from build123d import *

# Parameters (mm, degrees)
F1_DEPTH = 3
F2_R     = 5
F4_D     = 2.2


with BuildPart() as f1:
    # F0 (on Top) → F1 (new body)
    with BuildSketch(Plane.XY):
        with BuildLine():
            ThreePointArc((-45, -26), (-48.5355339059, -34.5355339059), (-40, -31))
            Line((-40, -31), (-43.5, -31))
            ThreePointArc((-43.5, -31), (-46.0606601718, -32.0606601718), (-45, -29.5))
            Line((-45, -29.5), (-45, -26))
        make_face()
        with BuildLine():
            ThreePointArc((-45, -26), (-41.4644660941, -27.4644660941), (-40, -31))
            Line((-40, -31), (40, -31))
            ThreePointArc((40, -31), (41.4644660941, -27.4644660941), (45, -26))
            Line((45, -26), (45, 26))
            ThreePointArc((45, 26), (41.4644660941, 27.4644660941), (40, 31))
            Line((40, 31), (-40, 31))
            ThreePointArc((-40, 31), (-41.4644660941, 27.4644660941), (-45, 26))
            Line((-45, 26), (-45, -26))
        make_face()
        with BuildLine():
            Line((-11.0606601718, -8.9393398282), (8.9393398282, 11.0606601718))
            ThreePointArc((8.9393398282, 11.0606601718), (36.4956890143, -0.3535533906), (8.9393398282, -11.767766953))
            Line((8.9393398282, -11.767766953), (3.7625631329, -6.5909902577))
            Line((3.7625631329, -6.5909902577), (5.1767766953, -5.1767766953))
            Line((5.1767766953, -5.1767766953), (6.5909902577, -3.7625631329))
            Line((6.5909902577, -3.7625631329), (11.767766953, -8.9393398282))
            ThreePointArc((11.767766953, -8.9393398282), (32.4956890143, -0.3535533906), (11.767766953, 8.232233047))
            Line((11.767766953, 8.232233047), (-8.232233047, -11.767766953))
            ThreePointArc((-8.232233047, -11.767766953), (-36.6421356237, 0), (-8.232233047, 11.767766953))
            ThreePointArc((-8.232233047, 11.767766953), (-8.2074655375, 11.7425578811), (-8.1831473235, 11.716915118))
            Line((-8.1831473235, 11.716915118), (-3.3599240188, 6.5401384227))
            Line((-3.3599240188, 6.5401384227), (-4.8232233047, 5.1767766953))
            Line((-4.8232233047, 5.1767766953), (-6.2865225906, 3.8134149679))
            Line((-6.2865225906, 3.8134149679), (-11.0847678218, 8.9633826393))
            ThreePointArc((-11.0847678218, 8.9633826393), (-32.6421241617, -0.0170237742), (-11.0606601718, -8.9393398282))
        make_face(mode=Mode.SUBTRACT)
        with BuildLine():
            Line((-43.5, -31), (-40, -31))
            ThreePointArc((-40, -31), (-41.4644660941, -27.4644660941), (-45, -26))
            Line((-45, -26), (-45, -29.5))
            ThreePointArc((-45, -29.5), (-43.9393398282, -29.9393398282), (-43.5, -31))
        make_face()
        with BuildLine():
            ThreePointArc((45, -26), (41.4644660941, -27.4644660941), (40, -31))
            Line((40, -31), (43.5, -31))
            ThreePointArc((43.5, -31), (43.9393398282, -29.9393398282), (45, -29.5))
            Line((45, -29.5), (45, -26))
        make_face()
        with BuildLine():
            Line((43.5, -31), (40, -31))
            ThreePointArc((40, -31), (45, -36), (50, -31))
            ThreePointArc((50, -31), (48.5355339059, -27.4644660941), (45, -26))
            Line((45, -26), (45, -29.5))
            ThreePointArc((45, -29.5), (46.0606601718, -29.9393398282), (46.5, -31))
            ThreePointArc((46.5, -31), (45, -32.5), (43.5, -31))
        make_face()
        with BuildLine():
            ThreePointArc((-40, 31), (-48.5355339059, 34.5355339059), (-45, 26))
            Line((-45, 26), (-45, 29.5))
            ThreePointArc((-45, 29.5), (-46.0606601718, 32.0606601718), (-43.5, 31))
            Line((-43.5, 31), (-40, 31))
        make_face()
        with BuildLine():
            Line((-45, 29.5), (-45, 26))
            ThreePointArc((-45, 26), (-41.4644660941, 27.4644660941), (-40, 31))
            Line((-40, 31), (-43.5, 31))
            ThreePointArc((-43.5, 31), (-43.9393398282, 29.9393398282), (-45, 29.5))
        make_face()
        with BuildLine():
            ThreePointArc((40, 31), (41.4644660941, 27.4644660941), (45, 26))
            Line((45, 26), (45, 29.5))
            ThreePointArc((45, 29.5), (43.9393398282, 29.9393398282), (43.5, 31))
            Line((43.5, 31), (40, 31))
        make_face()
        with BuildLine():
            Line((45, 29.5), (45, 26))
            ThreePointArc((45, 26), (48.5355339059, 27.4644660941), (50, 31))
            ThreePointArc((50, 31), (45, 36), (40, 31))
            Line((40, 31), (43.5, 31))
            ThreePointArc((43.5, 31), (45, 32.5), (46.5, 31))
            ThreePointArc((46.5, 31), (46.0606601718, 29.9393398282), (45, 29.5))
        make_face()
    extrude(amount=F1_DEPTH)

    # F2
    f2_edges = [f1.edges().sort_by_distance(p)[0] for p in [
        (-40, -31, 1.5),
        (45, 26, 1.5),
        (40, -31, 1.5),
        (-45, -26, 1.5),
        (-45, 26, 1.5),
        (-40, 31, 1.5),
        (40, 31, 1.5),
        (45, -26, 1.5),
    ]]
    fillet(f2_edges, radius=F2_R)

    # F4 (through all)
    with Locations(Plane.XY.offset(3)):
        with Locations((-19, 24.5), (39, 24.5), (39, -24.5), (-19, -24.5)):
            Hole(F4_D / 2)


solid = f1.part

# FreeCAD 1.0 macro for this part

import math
import FreeCAD as App
import Part
import Sketcher

V = App.Vector
Q = App.Units.Quantity


def edges_at(feature, points):
    """Names of the edges that pass closest to the given points."""
    edges = feature.Shape.Edges
    near = lambda p: min(range(len(edges)), key=lambda i: edges[i].distToShape(Part.Vertex(*p))[0])
    return sorted({f"Edge{near(p) + 1}" for p in points})

doc = App.newDocument("Part")
body = doc.addObject("PartDesign::Body", "Body")

# Sketch on XY plane
sketch1 = body.newObject("Sketcher::SketchObject", "Sketch")
sketch1.AttachmentSupport = (doc.getObject("XY_Plane"), [""])
sketch1.MapMode = "FlatFace"
sketch1.addGeometry(Part.ArcOfCircle(Part.Circle(V(-45, -31, 0), V(0, 0, 1), 5), math.radians(90), math.radians(360)), False)
sketch1.addGeometry(Part.LineSegment(V(-40, -31, 0), V(40, -31, 0)), False)
sketch1.addGeometry(Part.ArcOfCircle(Part.Circle(V(45, -31, 0), V(0, 0, 1), 5), math.radians(180), math.radians(360)), False)
sketch1.addGeometry(Part.ArcOfCircle(Part.Circle(V(45, -31, 0), V(0, 0, 1), 5), math.radians(0), math.radians(90)), False)
sketch1.addGeometry(Part.LineSegment(V(45, -26, 0), V(45, 26, 0)), False)
sketch1.addGeometry(Part.ArcOfCircle(Part.Circle(V(45, 31, 0), V(0, 0, 1), 5), math.radians(-90), math.radians(0)), False)
sketch1.addGeometry(Part.ArcOfCircle(Part.Circle(V(45, 31, 0), V(0, 0, 1), 5), math.radians(0), math.radians(180)), False)
sketch1.addGeometry(Part.LineSegment(V(40, 31, 0), V(-40, 31, 0)), False)
sketch1.addGeometry(Part.ArcOfCircle(Part.Circle(V(-45, 31, 0), V(0, 0, 1), 5), math.radians(0), math.radians(270)), False)
sketch1.addGeometry(Part.LineSegment(V(-45, 26, 0), V(-45, -26, 0)), False)
sketch1.addGeometry(Part.ArcOfCircle(Part.Circle(V(45, 31, 0), V(0, 0, 1), 1.5), math.radians(180), math.radians(270)), False)
sketch1.addGeometry(Part.ArcOfCircle(Part.Circle(V(45, 31, 0), V(0, 0, 1), 1.5), math.radians(0), math.radians(180)), False)
sketch1.addGeometry(Part.ArcOfCircle(Part.Circle(V(45, 31, 0), V(0, 0, 1), 1.5), math.radians(-90), math.radians(0)), False)
sketch1.addGeometry(Part.ArcOfCircle(Part.Circle(V(45, -31, 0), V(0, 0, 1), 1.5), math.radians(90), math.radians(180)), False)
sketch1.addGeometry(Part.ArcOfCircle(Part.Circle(V(45, -31, 0), V(0, 0, 1), 1.5), math.radians(0), math.radians(90)), False)
sketch1.addGeometry(Part.ArcOfCircle(Part.Circle(V(45, -31, 0), V(0, 0, 1), 1.5), math.radians(180), math.radians(360)), False)
sketch1.addGeometry(Part.ArcOfCircle(Part.Circle(V(-45, -31, 0), V(0, 0, 1), 1.5), math.radians(90), math.radians(360)), False)
sketch1.addGeometry(Part.ArcOfCircle(Part.Circle(V(-45, -31, 0), V(0, 0, 1), 1.5), math.radians(0), math.radians(90)), False)
sketch1.addGeometry(Part.LineSegment(V(-11.06, -8.94, 0), V(8.94, 11.06, 0)), False)
sketch1.addGeometry(Part.ArcOfCircle(Part.Circle(V(20.35, -0.35, 0), V(0, 0, 1), 16.14), math.radians(-135), math.radians(135)), False)
sketch1.addGeometry(Part.LineSegment(V(8.94, -11.77, 0), V(3.76, -6.59, 0)), False)
sketch1.addGeometry(Part.LineSegment(V(3.76, -6.59, 0), V(6.59, -3.76, 0)), False)
sketch1.addGeometry(Part.LineSegment(V(6.59, -3.76, 0), V(11.77, -8.94, 0)), False)
sketch1.addGeometry(Part.ArcOfCircle(Part.Circle(V(20.35, -0.35, 0), V(0, 0, 1), 12.14), math.radians(-135), math.radians(135)), False)
sketch1.addGeometry(Part.LineSegment(V(11.77, 8.23, 0), V(-8.23, -11.77, 0)), False)
sketch1.addGeometry(Part.ArcOfCircle(Part.Circle(V(-20, 0, 0), V(0, 0, 1), 16.64), math.radians(45), math.radians(315)), False)
sketch1.addGeometry(Part.ArcOfCircle(Part.Circle(V(-9.65, 10.35, 0), V(0, 0, 1), 2), math.radians(42.98), math.radians(45)), False)
sketch1.addGeometry(Part.LineSegment(V(-8.18, 11.72, 0), V(-3.36, 6.54, 0)), False)
sketch1.addGeometry(Part.LineSegment(V(-3.36, 6.54, 0), V(-6.29, 3.81, 0)), False)
sketch1.addGeometry(Part.LineSegment(V(-6.29, 3.81, 0), V(-11.08, 8.96, 0)), False)
sketch1.addGeometry(Part.ArcOfCircle(Part.Circle(V(-20, 0, 0), V(0, 0, 1), 12.64), math.radians(45), math.radians(315)), False)
sketch1.addGeometry(Part.ArcOfCircle(Part.Circle(V(-45, 31, 0), V(0, 0, 1), 1.5), math.radians(-90), math.radians(0)), False)
sketch1.addGeometry(Part.ArcOfCircle(Part.Circle(V(-45, 31, 0), V(0, 0, 1), 1.5), math.radians(0), math.radians(270)), False)
sketch1.addConstraint(Sketcher.Constraint("Coincident", 0, 2, 1, 1))
sketch1.addConstraint(Sketcher.Constraint("Coincident", 1, 2, 2, 1))
sketch1.addConstraint(Sketcher.Constraint("Tangent", 2, 2, 3, 1))
sketch1.addConstraint(Sketcher.Constraint("Coincident", 3, 2, 4, 1))
sketch1.addConstraint(Sketcher.Constraint("Coincident", 4, 2, 5, 1))
sketch1.addConstraint(Sketcher.Constraint("Tangent", 5, 2, 6, 1))
sketch1.addConstraint(Sketcher.Constraint("Coincident", 6, 2, 7, 1))
sketch1.addConstraint(Sketcher.Constraint("Coincident", 7, 2, 8, 1))
sketch1.addConstraint(Sketcher.Constraint("Coincident", 8, 2, 9, 1))
sketch1.addConstraint(Sketcher.Constraint("Coincident", 9, 2, 0, 1))
sketch1.addConstraint(Sketcher.Constraint("Tangent", 10, 1, 11, 2))
sketch1.addConstraint(Sketcher.Constraint("Tangent", 11, 1, 12, 2))
sketch1.addConstraint(Sketcher.Constraint("Tangent", 12, 1, 10, 2))
sketch1.addConstraint(Sketcher.Constraint("Tangent", 13, 1, 14, 2))
sketch1.addConstraint(Sketcher.Constraint("Tangent", 14, 1, 15, 2))
sketch1.addConstraint(Sketcher.Constraint("Tangent", 15, 1, 13, 2))
sketch1.addConstraint(Sketcher.Constraint("Tangent", 16, 1, 17, 2))
sketch1.addConstraint(Sketcher.Constraint("Coincident", 17, 1, 16, 2))
sketch1.addConstraint(Sketcher.Constraint("Tangent", 18, 2, 19, 2))
sketch1.addConstraint(Sketcher.Constraint("Tangent", 19, 1, 20, 1))
sketch1.addConstraint(Sketcher.Constraint("Coincident", 20, 2, 21, 1))
sketch1.addConstraint(Sketcher.Constraint("Coincident", 21, 2, 22, 1))
sketch1.addConstraint(Sketcher.Constraint("Tangent", 22, 2, 23, 1))
sketch1.addConstraint(Sketcher.Constraint("Tangent", 23, 2, 24, 1))
sketch1.addConstraint(Sketcher.Constraint("Tangent", 24, 2, 25, 2))
sketch1.addConstraint(Sketcher.Constraint("Tangent", 25, 1, 26, 2))
sketch1.addConstraint(Sketcher.Constraint("Tangent", 26, 1, 27, 1))
sketch1.addConstraint(Sketcher.Constraint("Coincident", 27, 2, 28, 1))
sketch1.addConstraint(Sketcher.Constraint("Coincident", 28, 2, 29, 1))
sketch1.addConstraint(Sketcher.Constraint("Coincident", 29, 2, 30, 1))
sketch1.addConstraint(Sketcher.Constraint("Tangent", 30, 2, 18, 1))
sketch1.addConstraint(Sketcher.Constraint("Tangent", 31, 1, 32, 2))
sketch1.addConstraint(Sketcher.Constraint("Coincident", 32, 1, 31, 2))
sketch1.addConstraint(Sketcher.Constraint("Horizontal", 1))
sketch1.addConstraint(Sketcher.Constraint("Vertical", 4))
sketch1.addConstraint(Sketcher.Constraint("Horizontal", 7))
sketch1.addConstraint(Sketcher.Constraint("Vertical", 9))
sketch1.addConstraint(Sketcher.Constraint("Coincident", 10, 3, 5, 3))
sketch1.addConstraint(Sketcher.Constraint("Coincident", 13, 3, 2, 3))
sketch1.addConstraint(Sketcher.Constraint("Coincident", 16, 3, 0, 3))
sketch1.addConstraint(Sketcher.Constraint("Coincident", 23, 3, 19, 3))
sketch1.addConstraint(Sketcher.Constraint("Coincident", 30, 3, 25, 3))
sketch1.addConstraint(Sketcher.Constraint("Coincident", 31, 3, 8, 3))
sketch1.addConstraint(Sketcher.Constraint("Equal", 0, 2))
sketch1.addConstraint(Sketcher.Constraint("Equal", 2, 3))
sketch1.addConstraint(Sketcher.Constraint("Equal", 3, 5))
sketch1.addConstraint(Sketcher.Constraint("Equal", 5, 6))
sketch1.addConstraint(Sketcher.Constraint("Equal", 6, 8))
sketch1.addConstraint(Sketcher.Constraint("Equal", 12, 13))
sketch1.addConstraint(Sketcher.Constraint("Equal", 15, 16))
sketch1.addConstraint(Sketcher.Constraint("Equal", 17, 31))
sketch1.addConstraint(Sketcher.Constraint("Symmetric", 0, 3, 5, 3, -1, 1))
sketch1.addConstraint(Sketcher.Constraint("Symmetric", 2, 3, 8, 3, -1, 1))
sketch1.addConstraint(Sketcher.Constraint("Symmetric", 0, 3, 2, 3, -2))
sketch1.addConstraint(Sketcher.Constraint("Symmetric", 24, 2, 25, 1, -1))
sketch1.addConstraint(Sketcher.Constraint("Perpendicular", 18, 20))
sketch1.addConstraint(Sketcher.Constraint("Perpendicular", 20, 21))
sketch1.addConstraint(Sketcher.Constraint("Perpendicular", 21, 22))
sketch1.addConstraint(Sketcher.Constraint("Perpendicular", 22, 24))
sketch1.addConstraint(Sketcher.Constraint("Perpendicular", 27, 28))
sketch1.addConstraint(Sketcher.Constraint("Perpendicular", 28, 29))
sketch1.addConstraint(Sketcher.Constraint("Horizontal", 17, 3, 0, 2))
sketch1.addConstraint(Sketcher.Constraint("Horizontal", 1, 2, 2, 2))
sketch1.addConstraint(Sketcher.Constraint("Horizontal", 32, 3, 5, 2))
sketch1.addConstraint(Sketcher.Constraint("Horizontal", 5, 2, 6, 2))
sketch1.addConstraint(Sketcher.Constraint("Horizontal", 7, 2, 10, 1))
sketch1.addConstraint(Sketcher.Constraint("Horizontal", 10, 1, 11, 1))
sketch1.addConstraint(Sketcher.Constraint("Horizontal", 2, 2, 14, 1))
sketch1.addConstraint(Sketcher.Constraint("Horizontal", 14, 1, 15, 1))
sketch1.addConstraint(Sketcher.Constraint("Horizontal", 15, 1, 17, 1))
sketch1.addConstraint(Sketcher.Constraint("Horizontal", 19, 1, 24, 2))
sketch1.addConstraint(Sketcher.Constraint("Horizontal", 22, 2, 30, 2))
sketch1.addConstraint(Sketcher.Constraint("Horizontal", 11, 1, 32, 1))
sketch1.addConstraint(Sketcher.Constraint("Vertical", 15, 3, 3, 2))
sketch1.addConstraint(Sketcher.Constraint("Vertical", 32, 3, 8, 2))
sketch1.addConstraint(Sketcher.Constraint("Vertical", 4, 2, 12, 1))
sketch1.addConstraint(Sketcher.Constraint("Vertical", 12, 1, 13, 1))
sketch1.addConstraint(Sketcher.Constraint("Vertical", 9, 2, 16, 1))
sketch1.addConstraint(Sketcher.Constraint("Vertical", 16, 1, 31, 1))
sketch1.addConstraint(Sketcher.Constraint("Equal", 21, 28))
sketch1.addConstraint(Sketcher.Constraint("Radius", 0, Q("5 mm")))
sketch1.addConstraint(Sketcher.Constraint("Radius", 26, Q("2 mm")))
sketch1.addConstraint(Sketcher.Constraint("Radius", 10, Q("1.5 mm")))
sketch1.addConstraint(Sketcher.Constraint("DistanceX", 1, 1, 1, 2, Q("80 mm")))
sketch1.addConstraint(Sketcher.Constraint("DistanceY", 4, 1, 4, 2, Q("52 mm")))
sketch1.addConstraint(Sketcher.Constraint("Distance", 21, Q("4 mm")))
sketch1.addConstraint(Sketcher.Constraint("DistanceX", 25, 3, -1, 1, Q("20 mm")))
sketch1.addConstraint(Sketcher.Constraint("DistanceX", 26, 3, 19, 3, Q("30 mm")))
sketch1.addConstraint(Sketcher.Constraint("Radius", 25, Q("16.642136 mm")))
sketch1.addConstraint(Sketcher.Constraint("DistanceX", 26, 3, 26, 1, Q("1.463299 mm")))
sketch1.addConstraint(Sketcher.Constraint("DistanceY", 21, 2, 27, 2, Q("10.302702 mm")))
sketch1.addConstraint(Sketcher.Constraint("DistanceY", 28, 2, 26, 1, Q("7.9035 mm")))
pad1 = body.newObject("PartDesign::Pad", "Pad")
pad1.Profile = sketch1
pad1.Length = 3
doc.recompute()

fillet = body.newObject("PartDesign::Fillet", "Fillet")
fillet.Base = (pad1, edges_at(pad1, [
    (-40, -31, 1.5),
    (45, 26, 1.5),
    (40, -31, 1.5),
    (-45, -26, 1.5),
    (-45, 26, 1.5),
    (-40, 31, 1.5),
    (40, 31, 1.5),
    (45, -26, 1.5),
]))
fillet.Radius = 5

# Sketch on XY plane
sketch2 = body.newObject("Sketcher::SketchObject", "Sketch001")
sketch2.AttachmentSupport = (doc.getObject("XY_Plane"), [""])
sketch2.MapMode = "FlatFace"
sketch2.AttachmentOffset = App.Placement(V(0, 0, 3), App.Rotation())
sketch2.addGeometry(Part.Circle(V(-19, 24.5, 0), V(0, 0, 1), 1.1), False)
sketch2.addGeometry(Part.Circle(V(39, 24.5, 0), V(0, 0, 1), 1.1), False)
sketch2.addGeometry(Part.Circle(V(39, -24.5, 0), V(0, 0, 1), 1.1), False)
sketch2.addGeometry(Part.Circle(V(-19, -24.5, 0), V(0, 0, 1), 1.1), False)
sketch2.addConstraint(Sketcher.Constraint("Equal", 0, 1))
sketch2.addConstraint(Sketcher.Constraint("Equal", 1, 2))
sketch2.addConstraint(Sketcher.Constraint("Equal", 2, 3))
sketch2.addConstraint(Sketcher.Constraint("Symmetric", 1, 3, 2, 3, -1))
sketch2.addConstraint(Sketcher.Constraint("Symmetric", 0, 3, 3, 3, -1))
sketch2.addConstraint(Sketcher.Constraint("Horizontal", 0, 3, 1, 3))
sketch2.addConstraint(Sketcher.Constraint("Diameter", 0, Q("2.2 mm")))
sketch2.addConstraint(Sketcher.Constraint("DistanceX", 0, 3, -1, 1, Q("19 mm")))
sketch2.addConstraint(Sketcher.Constraint("DistanceX", -1, 1, 1, 3, Q("39 mm")))
sketch2.addConstraint(Sketcher.Constraint("DistanceY", 2, 3, 1, 3, Q("49 mm")))
doc.recompute()
hole = body.newObject("PartDesign::Hole", "Hole")
hole.Profile = sketch2
hole.ThreadType = "None"
hole.Diameter = 2.2
hole.DepthType = "ThroughAll"

doc.recompute()
